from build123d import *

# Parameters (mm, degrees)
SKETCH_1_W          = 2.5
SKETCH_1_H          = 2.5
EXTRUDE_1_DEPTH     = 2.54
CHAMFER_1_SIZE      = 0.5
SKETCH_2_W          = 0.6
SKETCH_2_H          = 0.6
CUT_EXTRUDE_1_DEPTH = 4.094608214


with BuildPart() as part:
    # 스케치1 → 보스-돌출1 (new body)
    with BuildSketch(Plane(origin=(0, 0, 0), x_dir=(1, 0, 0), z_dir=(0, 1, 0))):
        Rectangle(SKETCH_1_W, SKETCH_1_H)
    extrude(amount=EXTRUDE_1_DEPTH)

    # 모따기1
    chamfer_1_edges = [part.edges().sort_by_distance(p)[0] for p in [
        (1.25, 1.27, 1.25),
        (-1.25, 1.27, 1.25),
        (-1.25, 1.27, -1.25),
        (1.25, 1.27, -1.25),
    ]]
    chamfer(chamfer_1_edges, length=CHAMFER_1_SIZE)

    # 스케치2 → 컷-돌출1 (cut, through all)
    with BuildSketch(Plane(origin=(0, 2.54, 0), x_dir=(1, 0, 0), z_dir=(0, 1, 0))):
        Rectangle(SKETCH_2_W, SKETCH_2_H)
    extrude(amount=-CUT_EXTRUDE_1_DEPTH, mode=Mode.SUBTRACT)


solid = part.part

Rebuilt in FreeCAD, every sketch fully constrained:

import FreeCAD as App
import Part
import Sketcher
from FreeCAD import Vector
Q = App.Units.Quantity


def edges_at(feature, points):
    """Names of the edges that pass closest to the given points."""
    edges = feature.Shape.Edges
    near = lambda p: min(range(len(edges)), key=lambda i: edges[i].distToShape(Part.Vertex(*p))[0])
    return sorted({f"Edge{near(p) + 1}" for p in points})


def add_polygon(sketch, points):
    """Adds a closed chain of lines whose ends are joined by coincident constraints."""
    first, n = sketch.GeometryCount, len(points)
    for a, b in zip(points, points[1:] + points[:1]):
        sketch.addGeometry(Part.LineSegment(App.Vector(*a, 0), App.Vector(*b, 0)), False)
    for i in range(n):
        sketch.addConstraint(Sketcher.Constraint("Coincident", first + i, 2, first + (i + 1) % n, 1))

doc = App.newDocument("Part")
body = doc.addObject("PartDesign::Body", "Body")

sketch1 = doc.addObject("Sketcher::SketchObject", "Sketch")
body.addObject(sketch1)
sketch1.AttachmentSupport = (doc.XZ_Plane, [""])
sketch1.MapMode = "FlatFace"
add_polygon(sketch1, [(-1.2, -1.2), (-1.2, 1.2), (1.2, 1.2), (1.2, -1.2)])
sketch1.addConstraint(Sketcher.Constraint("Vertical", 0))
sketch1.addConstraint(Sketcher.Constraint("Horizontal", 1))
sketch1.addConstraint(Sketcher.Constraint("Vertical", 2))
sketch1.addConstraint(Sketcher.Constraint("Horizontal", 3))
sketch1.addConstraint(Sketcher.Constraint("Symmetric", 0, 2, 2, 2, -1, 1))
sketch1.addConstraint(Sketcher.Constraint("Equal", 3, 0))
sketch1.addConstraint(Sketcher.Constraint("DistanceX", 1, 1, 1, 2, Q("2.5 mm")))
pad1 = doc.addObject("PartDesign::Pad", "Pad")
body.addObject(pad1)
pad1.Profile = sketch1
pad1.Length = 2.54
pad1.Reversed = True
doc.recompute()

chamfer = doc.addObject("PartDesign::Chamfer", "Chamfer")
body.addObject(chamfer)
chamfer.Base = (pad1, edges_at(pad1, [
    (1.25, 1.27, 1.25),
    (-1.25, 1.27, 1.25),
    (-1.25, 1.27, -1.25),
    (1.25, 1.27, -1.25),
]))
chamfer.Size = 0.5

sketch2 = doc.addObject("Sketcher::SketchObject", "Sketch001")
body.addObject(sketch2)
sketch2.AttachmentSupport = (doc.XZ_Plane, [""])
sketch2.MapMode = "FlatFace"
sketch2.AttachmentOffset = App.Placement(Vector(0, 0, -2.54), App.Rotation())
add_polygon(sketch2, [(-0.3, -0.3), (-0.3, 0.3), (0.3, 0.3), (0.3, -0.3)])
sketch2.addConstraint(Sketcher.Constraint("Vertical", 0))
sketch2.addConstraint(Sketcher.Constraint("Horizontal", 1))
sketch2.addConstraint(Sketcher.Constraint("Vertical", 2))
sketch2.addConstraint(Sketcher.Constraint("Horizontal", 3))
sketch2.addConstraint(Sketcher.Constraint("Symmetric", 0, 2, 2, 2, -1, 1))
sketch2.addConstraint(Sketcher.Constraint("Equal", 3, 0))
sketch2.addConstraint(Sketcher.Constraint("DistanceX", 1, 1, 1, 2, Q("0.6 mm")))
pocket1 = doc.addObject("PartDesign::Pocket", "Pocket")
body.addObject(pocket1)
pocket1.Profile = sketch2
pocket1.Type = "ThroughAll"
pocket1.Reversed = True

doc.recompute()
